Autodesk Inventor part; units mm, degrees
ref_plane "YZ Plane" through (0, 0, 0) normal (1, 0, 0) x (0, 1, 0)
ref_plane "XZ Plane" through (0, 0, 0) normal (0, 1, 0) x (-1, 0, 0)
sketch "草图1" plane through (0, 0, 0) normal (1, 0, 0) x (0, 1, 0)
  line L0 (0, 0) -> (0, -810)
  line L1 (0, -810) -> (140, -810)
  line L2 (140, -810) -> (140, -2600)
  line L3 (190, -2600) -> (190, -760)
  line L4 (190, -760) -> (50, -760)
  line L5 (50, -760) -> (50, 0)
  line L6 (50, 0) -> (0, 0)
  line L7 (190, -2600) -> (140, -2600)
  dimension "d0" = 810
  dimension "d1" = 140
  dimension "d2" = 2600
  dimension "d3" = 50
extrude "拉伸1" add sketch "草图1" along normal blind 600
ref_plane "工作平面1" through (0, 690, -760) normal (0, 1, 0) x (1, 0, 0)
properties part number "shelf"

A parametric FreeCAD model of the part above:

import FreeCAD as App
import Part
import Sketcher

doc = App.newDocument("Part")
params = doc.addObject("Spreadsheet::Sheet", "Params")
for row, (alias, value) in enumerate([
    ("sketch1_width", "50 mm"),
    ("sketch1_width2", "140 mm"),
    ("sketch1_height", "810 mm"),
    ("pad1_length", "600 mm"),
], start=1):
    params.set(f"A{row}", alias)
    params.set(f"B{row}", "=" + value)
    params.setAlias(f"B{row}", alias)

body = doc.addObject("PartDesign::Body", "Body")

# Sketch on YZ plane
sketch1 = body.newObject("Sketcher::SketchObject", "Sketch")
sketch1.AttachmentSupport = (doc.getObject("YZ_Plane"), [""])
sketch1.MapMode = "FlatFace"
sketch1.addGeometry([
    Part.LineSegment(App.Vector(50, 0, 0), App.Vector(0, 0, 0)),  # 0
    Part.LineSegment(App.Vector(0, 0, 0), App.Vector(0, -810, 0)),  # 1
    Part.LineSegment(App.Vector(0, -810, 0), App.Vector(140, -810, 0)),  # 2
    Part.LineSegment(App.Vector(140, -810, 0), App.Vector(140, -2600, 0)),  # 3
    Part.LineSegment(App.Vector(140, -2600, 0), App.Vector(190, -2600, 0)),  # 4
    Part.LineSegment(App.Vector(190, -2600, 0), App.Vector(190, -760, 0)),  # 5
    Part.LineSegment(App.Vector(190, -760, 0), App.Vector(50, -760, 0)),  # 6
    Part.LineSegment(App.Vector(50, -760, 0), App.Vector(50, 0, 0)),  # 7
], False)
sketch1.addConstraint([
    Sketcher.Constraint("Coincident", 0, 2, 1, 1),
    Sketcher.Constraint("Coincident", 1, 2, 2, 1),
    Sketcher.Constraint("Coincident", 2, 2, 3, 1),
    Sketcher.Constraint("Coincident", 3, 2, 4, 1),
    Sketcher.Constraint("Coincident", 4, 2, 5, 1),
    Sketcher.Constraint("Coincident", 5, 2, 6, 1),
    Sketcher.Constraint("Coincident", 6, 2, 7, 1),
    Sketcher.Constraint("Coincident", 7, 2, 0, 1),
    Sketcher.Constraint("Horizontal", 0),
    Sketcher.Constraint("Vertical", 1),
    Sketcher.Constraint("Horizontal", 2),
    Sketcher.Constraint("Vertical", 3),
    Sketcher.Constraint("Horizontal", 4),
    Sketcher.Constraint("Vertical", 5),
    Sketcher.Constraint("Horizontal", 6),
    Sketcher.Constraint("Vertical", 7),
    Sketcher.Constraint("Coincident", 0, 2, -1, 1),
    Sketcher.Constraint("Equal", 0, 4),
    Sketcher.Constraint("DistanceX", 0, 2, 0, 1, 50.0),
    Sketcher.Constraint("DistanceX", 2, 1, 2, 2, 140.0),
    Sketcher.Constraint("DistanceY", 1, 2, 1, 1, 810.0),
    Sketcher.Constraint("DistanceY", 3, 2, -1, 1, 2600.0),
    Sketcher.Constraint("DistanceY", 2, 2, 5, 2, 50.0),
])
sketch1.setExpression("Constraints[18]", "Params.sketch1_width")
sketch1.setExpression("Constraints[19]", "Params.sketch1_width2")
sketch1.setExpression("Constraints[20]", "Params.sketch1_height")
pad1 = body.newObject("PartDesign::Pad", "Pad")
pad1.Profile = sketch1
pad1.setExpression("Length", "Params.pad1_length")

doc.recompute()
